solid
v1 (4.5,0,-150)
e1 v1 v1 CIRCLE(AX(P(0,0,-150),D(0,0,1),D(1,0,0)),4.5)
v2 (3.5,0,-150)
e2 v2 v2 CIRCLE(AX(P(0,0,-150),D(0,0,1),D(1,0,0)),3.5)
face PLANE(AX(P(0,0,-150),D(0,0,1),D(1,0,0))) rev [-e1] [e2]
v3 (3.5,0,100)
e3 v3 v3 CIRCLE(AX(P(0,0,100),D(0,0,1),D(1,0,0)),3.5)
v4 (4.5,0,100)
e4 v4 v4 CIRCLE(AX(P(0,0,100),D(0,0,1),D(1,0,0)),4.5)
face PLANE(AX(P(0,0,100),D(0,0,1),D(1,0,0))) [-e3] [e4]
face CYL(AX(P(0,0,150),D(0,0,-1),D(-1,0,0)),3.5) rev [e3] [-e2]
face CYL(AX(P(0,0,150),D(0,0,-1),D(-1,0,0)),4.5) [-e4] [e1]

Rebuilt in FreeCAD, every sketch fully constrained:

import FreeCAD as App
import Part
import Sketcher

V = App.Vector

doc = App.newDocument("Part")
params = doc.addObject("Spreadsheet::Sheet", "Params")
for row, (alias, value) in enumerate([
    ("sketch1_diameter", "9 mm"),
    ("sketch1_diameter2", "7 mm"),
    ("pad1_length", "300 mm"),
    ("sketch2_diameter", "9 mm"),
    ("pocket1_length", "50 mm"),
], start=1):
    params.set(f"A{row}", alias)
    params.set(f"B{row}", "=" + value)
    params.setAlias(f"B{row}", alias)

body = doc.addObject("PartDesign::Body", "Body")

# Sketch on XY plane
sketch1 = body.newObject("Sketcher::SketchObject", "Sketch")
sketch1.AttachmentSupport = (doc.getObject("XY_Plane"), [""])
sketch1.MapMode = "FlatFace"
sketch1.addGeometry([
    Part.Circle(V(0, 0, 0), V(0, 0, 1), 4.5),
    Part.Circle(V(0, 0, 0), V(0, 0, 1), 3.5),
], False)
sketch1.addConstraint([
    Sketcher.Constraint("Coincident", 0, 3, -1, 1),
    Sketcher.Constraint("Coincident", 1, 3, -1, 1),
    Sketcher.Constraint("Diameter", 0, 9.0),
    Sketcher.Constraint("Diameter", 1, 7.0),
])
sketch1.setExpression("Constraints[2]", "Params.sketch1_diameter")
sketch1.setExpression("Constraints[3]", "Params.sketch1_diameter2")
pad1 = body.newObject("PartDesign::Pad", "Pad")
pad1.Profile = sketch1
pad1.setExpression("Length", "Params.pad1_length")
pad1.Midplane = True

# Sketch on XY plane
sketch2 = body.newObject("Sketcher::SketchObject", "Sketch001")
sketch2.AttachmentSupport = (doc.getObject("XY_Plane"), [""])
sketch2.MapMode = "FlatFace"
sketch2.AttachmentOffset = App.Placement(V(0, 0, 150), App.Rotation())
sketch2.addGeometry(Part.Circle(V(0, 0, 0), V(0, 0, 1), 4.5), False)
sketch2.addConstraint([
    Sketcher.Constraint("Coincident", 0, 3, -1, 1),
    Sketcher.Constraint("Diameter", 0, 9.0),
])
sketch2.setExpression("Constraints[1]", "Params.sketch2_diameter")
pocket1 = body.newObject("PartDesign::Pocket", "Pocket")
pocket1.Profile = sketch2
pocket1.setExpression("Length", "Params.pocket1_length")

doc.recompute()
